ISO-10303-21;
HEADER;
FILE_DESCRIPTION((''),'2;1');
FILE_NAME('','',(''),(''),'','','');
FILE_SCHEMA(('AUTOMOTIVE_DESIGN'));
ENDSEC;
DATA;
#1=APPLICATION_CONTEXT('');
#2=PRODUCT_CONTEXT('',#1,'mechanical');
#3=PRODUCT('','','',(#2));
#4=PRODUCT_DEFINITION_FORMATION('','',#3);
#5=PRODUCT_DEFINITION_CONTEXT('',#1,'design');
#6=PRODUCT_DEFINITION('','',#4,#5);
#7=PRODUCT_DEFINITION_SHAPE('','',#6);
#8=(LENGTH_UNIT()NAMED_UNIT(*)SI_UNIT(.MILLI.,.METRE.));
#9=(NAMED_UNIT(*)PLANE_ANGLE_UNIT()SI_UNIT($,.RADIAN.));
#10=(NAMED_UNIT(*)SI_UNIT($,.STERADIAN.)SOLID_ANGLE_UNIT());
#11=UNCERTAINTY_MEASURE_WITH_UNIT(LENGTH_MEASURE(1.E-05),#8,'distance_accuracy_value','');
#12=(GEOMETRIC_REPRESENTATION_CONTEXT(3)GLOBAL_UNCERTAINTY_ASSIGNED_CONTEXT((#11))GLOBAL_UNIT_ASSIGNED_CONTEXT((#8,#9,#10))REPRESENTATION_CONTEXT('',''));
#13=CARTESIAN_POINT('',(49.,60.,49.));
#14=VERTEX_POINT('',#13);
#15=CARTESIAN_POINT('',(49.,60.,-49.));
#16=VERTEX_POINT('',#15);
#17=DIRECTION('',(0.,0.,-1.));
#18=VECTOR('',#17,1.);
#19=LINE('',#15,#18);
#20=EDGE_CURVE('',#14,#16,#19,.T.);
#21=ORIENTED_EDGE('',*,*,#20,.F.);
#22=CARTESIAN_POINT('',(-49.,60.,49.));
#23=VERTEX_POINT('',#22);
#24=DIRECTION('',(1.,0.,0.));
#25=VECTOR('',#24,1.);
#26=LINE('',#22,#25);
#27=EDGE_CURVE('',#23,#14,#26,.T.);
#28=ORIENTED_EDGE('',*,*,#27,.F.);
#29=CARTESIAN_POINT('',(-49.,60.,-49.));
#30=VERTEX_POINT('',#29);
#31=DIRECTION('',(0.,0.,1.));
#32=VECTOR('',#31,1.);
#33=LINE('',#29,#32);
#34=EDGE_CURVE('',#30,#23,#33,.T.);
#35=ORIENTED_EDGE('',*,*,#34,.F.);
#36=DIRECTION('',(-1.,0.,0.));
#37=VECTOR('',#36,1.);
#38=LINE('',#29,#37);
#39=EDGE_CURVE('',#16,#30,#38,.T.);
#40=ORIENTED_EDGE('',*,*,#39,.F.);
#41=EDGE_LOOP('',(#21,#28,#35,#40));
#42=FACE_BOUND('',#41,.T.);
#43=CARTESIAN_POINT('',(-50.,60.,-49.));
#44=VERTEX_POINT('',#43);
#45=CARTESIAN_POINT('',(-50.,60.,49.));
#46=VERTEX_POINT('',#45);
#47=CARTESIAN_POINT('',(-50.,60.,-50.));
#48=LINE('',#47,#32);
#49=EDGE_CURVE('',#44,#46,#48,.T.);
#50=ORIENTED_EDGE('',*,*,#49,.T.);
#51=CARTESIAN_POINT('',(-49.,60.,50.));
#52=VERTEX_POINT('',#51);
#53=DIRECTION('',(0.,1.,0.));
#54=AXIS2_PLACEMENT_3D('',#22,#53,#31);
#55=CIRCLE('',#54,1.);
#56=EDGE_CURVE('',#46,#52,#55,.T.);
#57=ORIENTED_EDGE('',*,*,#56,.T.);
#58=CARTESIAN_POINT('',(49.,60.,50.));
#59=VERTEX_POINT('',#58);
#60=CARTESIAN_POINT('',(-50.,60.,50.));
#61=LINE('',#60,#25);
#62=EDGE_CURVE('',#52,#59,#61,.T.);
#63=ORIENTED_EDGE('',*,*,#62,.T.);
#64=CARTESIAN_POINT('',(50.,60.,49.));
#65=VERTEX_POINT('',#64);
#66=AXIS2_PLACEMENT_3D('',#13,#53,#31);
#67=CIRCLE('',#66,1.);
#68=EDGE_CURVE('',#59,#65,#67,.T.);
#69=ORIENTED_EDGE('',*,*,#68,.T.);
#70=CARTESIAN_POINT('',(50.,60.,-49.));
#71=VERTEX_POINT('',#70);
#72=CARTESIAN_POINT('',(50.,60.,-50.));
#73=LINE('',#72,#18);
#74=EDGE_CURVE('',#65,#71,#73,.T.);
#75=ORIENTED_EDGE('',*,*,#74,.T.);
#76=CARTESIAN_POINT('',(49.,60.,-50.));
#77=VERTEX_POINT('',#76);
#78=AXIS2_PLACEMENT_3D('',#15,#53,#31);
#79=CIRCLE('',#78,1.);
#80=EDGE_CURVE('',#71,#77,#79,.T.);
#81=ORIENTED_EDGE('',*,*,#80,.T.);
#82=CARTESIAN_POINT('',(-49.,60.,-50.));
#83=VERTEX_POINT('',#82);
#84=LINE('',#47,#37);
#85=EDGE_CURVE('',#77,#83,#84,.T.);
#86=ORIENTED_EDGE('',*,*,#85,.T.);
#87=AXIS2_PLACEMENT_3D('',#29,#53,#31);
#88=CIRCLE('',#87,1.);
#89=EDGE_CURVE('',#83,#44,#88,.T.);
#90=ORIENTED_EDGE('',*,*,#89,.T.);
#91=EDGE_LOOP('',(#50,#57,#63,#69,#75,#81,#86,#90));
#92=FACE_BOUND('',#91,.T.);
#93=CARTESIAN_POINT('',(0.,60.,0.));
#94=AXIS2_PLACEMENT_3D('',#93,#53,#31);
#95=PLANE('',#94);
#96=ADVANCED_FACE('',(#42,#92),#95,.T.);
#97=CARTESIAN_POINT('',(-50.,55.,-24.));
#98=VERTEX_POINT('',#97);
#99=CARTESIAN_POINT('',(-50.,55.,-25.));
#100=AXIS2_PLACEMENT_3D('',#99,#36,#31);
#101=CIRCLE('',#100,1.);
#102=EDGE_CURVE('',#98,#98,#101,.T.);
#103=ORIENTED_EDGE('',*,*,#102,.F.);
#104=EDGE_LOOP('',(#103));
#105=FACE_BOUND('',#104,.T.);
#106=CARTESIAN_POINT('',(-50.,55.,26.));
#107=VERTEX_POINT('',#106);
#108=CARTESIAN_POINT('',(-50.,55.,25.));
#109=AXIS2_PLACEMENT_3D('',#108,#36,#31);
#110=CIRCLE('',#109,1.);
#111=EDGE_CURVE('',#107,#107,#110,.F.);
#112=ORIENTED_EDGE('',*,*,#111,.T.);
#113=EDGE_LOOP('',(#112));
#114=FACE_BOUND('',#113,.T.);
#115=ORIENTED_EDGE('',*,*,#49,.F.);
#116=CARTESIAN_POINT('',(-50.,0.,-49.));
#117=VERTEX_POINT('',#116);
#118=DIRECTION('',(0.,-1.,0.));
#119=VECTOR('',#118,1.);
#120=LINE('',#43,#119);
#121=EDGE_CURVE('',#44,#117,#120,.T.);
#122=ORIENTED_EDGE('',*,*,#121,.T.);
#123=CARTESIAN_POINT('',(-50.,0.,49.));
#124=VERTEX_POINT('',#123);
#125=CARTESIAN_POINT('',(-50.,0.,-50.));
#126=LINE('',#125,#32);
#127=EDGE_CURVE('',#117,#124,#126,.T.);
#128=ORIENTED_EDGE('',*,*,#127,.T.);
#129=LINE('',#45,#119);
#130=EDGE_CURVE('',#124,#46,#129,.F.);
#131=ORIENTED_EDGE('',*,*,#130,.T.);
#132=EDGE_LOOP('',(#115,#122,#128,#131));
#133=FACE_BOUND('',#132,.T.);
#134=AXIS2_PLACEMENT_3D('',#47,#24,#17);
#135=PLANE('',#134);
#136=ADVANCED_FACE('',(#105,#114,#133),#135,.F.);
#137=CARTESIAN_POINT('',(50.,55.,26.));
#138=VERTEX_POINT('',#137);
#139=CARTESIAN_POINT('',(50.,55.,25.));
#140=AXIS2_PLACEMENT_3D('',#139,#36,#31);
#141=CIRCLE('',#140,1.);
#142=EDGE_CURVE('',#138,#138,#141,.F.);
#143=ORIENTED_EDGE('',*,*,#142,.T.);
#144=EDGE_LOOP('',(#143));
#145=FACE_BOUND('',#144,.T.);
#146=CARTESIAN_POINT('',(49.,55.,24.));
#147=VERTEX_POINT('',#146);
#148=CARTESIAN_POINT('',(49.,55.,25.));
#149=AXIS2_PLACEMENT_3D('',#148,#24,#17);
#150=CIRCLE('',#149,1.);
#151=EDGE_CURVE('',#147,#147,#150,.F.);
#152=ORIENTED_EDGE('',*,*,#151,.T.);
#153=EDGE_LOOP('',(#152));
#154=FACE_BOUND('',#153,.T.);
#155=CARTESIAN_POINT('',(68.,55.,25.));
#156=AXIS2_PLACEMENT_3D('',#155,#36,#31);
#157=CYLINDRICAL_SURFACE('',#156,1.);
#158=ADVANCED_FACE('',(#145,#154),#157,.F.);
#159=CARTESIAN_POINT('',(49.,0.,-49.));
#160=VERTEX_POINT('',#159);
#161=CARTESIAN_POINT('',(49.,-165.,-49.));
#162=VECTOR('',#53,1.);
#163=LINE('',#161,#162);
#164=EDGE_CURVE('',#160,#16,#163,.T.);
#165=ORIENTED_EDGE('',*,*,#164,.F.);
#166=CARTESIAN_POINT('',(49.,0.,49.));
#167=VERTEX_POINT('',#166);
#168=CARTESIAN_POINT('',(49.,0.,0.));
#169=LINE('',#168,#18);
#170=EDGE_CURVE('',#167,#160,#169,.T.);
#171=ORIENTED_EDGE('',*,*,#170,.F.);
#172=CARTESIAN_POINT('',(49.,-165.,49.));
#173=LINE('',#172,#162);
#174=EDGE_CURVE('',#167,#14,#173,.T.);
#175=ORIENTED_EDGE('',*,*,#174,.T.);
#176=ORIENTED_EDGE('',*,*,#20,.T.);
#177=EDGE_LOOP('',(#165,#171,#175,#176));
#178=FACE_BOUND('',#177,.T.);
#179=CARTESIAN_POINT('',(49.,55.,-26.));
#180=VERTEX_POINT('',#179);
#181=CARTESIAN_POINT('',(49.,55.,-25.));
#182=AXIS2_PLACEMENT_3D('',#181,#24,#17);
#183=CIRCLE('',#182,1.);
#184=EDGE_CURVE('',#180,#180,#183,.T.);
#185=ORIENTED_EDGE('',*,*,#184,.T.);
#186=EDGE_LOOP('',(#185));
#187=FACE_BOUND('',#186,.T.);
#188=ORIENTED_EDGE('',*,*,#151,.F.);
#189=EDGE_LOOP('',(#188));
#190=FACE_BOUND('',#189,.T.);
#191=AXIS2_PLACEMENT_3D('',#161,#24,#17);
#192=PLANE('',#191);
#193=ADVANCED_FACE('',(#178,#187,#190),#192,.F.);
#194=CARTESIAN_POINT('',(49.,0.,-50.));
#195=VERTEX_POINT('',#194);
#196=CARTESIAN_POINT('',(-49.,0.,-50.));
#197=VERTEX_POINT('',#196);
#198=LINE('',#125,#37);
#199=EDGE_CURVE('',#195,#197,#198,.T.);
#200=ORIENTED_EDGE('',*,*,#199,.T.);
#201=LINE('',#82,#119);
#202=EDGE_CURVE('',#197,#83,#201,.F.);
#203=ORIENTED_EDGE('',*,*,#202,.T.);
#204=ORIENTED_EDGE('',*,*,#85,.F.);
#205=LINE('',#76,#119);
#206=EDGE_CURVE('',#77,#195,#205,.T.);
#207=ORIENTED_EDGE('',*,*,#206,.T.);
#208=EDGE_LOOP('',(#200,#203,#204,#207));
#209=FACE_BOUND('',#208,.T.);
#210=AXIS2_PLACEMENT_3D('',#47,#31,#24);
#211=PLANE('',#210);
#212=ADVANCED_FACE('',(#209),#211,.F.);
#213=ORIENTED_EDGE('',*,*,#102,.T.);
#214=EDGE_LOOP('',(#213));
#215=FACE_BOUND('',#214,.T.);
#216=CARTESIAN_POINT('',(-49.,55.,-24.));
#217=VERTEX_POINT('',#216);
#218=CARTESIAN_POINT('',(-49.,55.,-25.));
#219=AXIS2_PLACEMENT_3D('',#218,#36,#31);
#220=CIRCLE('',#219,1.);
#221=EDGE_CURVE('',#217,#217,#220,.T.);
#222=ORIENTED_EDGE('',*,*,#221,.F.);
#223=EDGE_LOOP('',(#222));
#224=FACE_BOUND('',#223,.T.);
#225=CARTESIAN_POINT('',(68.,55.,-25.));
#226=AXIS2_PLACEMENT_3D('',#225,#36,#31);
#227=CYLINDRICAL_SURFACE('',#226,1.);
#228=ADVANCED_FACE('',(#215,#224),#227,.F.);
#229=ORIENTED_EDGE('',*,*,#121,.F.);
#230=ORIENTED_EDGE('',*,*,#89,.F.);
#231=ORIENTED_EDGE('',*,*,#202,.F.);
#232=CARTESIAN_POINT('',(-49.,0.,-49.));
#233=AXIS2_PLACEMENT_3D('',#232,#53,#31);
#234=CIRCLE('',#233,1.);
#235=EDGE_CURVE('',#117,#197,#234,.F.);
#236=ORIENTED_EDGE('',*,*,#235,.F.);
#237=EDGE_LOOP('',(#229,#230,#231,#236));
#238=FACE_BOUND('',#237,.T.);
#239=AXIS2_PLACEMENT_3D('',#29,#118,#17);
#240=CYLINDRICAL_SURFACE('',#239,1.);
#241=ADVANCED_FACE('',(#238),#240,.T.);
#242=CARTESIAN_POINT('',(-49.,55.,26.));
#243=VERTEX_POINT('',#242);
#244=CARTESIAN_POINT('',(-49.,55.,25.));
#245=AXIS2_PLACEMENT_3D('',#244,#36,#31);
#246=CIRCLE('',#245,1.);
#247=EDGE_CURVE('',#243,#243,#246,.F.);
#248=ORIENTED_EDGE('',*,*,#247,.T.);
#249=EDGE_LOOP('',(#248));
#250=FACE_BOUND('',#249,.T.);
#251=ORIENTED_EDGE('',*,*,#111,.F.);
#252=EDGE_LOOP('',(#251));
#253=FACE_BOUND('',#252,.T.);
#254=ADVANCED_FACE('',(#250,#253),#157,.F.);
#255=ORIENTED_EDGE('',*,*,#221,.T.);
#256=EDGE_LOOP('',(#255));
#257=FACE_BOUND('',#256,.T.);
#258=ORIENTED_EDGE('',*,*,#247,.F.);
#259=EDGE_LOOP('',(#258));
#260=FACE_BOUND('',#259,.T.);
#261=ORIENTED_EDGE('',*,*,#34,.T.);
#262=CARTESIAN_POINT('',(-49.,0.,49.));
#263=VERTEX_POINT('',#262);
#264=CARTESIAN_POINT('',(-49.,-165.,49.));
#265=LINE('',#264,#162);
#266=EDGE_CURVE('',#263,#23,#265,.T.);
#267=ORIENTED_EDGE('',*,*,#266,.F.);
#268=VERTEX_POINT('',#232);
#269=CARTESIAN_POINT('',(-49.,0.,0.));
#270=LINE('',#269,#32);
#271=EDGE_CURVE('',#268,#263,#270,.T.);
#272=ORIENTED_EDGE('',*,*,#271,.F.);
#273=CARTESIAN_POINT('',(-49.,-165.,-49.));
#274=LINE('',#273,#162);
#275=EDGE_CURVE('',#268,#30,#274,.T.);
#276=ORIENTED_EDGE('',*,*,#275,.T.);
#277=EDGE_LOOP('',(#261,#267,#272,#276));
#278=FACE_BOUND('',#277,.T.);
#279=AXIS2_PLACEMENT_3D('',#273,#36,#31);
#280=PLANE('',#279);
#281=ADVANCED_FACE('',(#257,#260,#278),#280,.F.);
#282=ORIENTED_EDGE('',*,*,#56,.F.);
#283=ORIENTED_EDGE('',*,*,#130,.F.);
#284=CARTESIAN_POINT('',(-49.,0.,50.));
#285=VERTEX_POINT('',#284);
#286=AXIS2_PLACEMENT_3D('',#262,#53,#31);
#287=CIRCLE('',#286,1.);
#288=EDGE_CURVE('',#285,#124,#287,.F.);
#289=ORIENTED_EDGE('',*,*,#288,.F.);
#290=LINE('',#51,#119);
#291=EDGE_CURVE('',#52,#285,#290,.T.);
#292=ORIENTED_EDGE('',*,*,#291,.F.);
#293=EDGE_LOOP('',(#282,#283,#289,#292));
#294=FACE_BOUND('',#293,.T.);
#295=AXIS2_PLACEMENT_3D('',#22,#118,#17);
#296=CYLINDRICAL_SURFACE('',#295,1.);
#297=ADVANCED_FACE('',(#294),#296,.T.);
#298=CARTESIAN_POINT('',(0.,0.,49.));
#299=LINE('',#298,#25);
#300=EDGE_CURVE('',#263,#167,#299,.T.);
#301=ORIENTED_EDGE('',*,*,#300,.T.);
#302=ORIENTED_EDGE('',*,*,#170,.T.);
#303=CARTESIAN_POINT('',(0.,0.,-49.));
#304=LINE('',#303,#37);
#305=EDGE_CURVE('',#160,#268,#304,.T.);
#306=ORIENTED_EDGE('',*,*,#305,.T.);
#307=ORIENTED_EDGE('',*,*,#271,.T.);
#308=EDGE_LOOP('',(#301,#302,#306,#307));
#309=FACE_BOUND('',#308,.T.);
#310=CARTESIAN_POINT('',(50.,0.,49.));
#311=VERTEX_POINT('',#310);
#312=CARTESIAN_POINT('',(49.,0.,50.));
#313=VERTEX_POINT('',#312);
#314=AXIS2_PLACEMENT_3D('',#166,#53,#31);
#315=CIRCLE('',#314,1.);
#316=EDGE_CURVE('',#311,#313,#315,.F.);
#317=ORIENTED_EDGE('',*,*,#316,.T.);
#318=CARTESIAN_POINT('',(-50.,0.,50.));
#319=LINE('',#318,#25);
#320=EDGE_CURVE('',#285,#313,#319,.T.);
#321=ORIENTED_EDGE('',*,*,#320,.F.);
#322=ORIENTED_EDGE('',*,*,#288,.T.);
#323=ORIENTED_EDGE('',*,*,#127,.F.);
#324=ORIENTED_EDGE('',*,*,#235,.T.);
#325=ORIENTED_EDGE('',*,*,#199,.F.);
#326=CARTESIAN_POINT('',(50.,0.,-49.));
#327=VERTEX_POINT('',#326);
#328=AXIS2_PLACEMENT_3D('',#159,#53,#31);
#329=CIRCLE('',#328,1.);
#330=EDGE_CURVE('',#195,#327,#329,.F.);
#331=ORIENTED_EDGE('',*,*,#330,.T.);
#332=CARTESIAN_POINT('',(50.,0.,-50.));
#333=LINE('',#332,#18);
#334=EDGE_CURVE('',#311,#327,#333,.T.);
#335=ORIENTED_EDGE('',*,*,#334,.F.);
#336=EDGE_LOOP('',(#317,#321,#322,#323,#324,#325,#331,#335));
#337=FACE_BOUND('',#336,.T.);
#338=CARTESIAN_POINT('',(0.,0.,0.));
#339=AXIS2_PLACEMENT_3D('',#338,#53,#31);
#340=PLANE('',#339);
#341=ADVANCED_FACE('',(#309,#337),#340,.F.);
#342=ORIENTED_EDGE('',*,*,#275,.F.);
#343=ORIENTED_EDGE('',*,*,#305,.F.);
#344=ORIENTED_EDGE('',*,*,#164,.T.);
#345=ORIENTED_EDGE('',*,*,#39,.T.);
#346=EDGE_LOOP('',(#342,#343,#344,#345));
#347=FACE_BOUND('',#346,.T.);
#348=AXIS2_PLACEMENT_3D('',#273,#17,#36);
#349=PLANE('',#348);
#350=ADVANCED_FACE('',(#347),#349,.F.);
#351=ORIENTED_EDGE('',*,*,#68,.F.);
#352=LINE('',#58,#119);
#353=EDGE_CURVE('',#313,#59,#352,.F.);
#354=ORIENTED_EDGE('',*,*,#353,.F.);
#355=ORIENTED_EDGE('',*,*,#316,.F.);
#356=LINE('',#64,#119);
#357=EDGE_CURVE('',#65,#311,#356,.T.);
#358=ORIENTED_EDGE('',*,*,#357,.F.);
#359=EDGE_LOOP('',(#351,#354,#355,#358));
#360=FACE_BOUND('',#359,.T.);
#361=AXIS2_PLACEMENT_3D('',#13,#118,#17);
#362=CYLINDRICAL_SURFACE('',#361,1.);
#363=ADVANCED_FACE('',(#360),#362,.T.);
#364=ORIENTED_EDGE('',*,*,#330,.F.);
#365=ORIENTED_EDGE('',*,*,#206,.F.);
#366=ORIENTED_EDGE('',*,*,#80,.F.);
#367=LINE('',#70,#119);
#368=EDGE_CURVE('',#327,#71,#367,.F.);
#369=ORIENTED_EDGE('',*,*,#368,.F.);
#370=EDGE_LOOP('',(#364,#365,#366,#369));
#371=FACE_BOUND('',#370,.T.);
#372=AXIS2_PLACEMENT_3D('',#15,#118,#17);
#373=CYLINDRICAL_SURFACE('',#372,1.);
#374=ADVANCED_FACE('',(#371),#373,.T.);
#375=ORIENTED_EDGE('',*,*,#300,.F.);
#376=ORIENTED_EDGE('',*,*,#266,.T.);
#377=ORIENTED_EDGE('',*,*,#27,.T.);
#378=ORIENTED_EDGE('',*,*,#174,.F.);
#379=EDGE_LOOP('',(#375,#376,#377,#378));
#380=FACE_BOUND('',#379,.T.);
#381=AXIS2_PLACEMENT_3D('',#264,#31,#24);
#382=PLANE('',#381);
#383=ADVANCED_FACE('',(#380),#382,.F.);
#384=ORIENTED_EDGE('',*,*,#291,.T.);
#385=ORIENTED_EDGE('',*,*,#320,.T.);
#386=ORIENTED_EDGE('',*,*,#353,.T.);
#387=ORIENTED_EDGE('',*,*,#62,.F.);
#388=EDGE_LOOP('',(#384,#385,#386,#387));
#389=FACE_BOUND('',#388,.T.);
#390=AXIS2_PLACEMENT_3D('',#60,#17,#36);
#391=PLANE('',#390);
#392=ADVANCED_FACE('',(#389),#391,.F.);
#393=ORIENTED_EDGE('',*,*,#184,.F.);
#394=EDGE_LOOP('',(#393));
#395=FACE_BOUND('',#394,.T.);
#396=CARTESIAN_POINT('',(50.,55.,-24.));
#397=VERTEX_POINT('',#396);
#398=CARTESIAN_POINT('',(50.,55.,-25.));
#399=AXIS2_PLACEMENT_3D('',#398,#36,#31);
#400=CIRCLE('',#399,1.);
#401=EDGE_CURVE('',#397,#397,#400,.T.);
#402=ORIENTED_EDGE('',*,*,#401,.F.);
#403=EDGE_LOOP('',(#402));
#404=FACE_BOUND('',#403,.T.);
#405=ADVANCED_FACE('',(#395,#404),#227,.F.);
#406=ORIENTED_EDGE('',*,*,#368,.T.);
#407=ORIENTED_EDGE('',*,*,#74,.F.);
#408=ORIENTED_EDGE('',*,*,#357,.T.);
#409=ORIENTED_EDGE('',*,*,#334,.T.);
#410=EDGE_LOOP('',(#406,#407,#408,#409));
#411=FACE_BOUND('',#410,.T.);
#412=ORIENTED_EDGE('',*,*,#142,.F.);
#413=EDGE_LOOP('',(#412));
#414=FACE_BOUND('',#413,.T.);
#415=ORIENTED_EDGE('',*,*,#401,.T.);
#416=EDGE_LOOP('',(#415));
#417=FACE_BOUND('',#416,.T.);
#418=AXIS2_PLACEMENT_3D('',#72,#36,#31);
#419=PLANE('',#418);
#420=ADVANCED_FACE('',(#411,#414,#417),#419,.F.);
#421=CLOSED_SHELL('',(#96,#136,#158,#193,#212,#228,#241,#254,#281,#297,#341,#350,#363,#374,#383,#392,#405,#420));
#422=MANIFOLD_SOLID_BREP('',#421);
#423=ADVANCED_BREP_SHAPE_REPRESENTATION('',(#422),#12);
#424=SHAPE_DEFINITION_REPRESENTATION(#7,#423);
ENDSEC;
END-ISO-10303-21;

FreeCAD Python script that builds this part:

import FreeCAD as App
import Part
import Sketcher
from FreeCAD import Vector
Q = App.Units.Quantity


def edges_at(feature, points):
    """Names of the edges that pass closest to the given points."""
    edges = feature.Shape.Edges
    near = lambda p: min(range(len(edges)), key=lambda i: edges[i].distToShape(Part.Vertex(*p))[0])
    return sorted({f"Edge{near(p) + 1}" for p in points})

doc = App.newDocument("Part")
params = doc.addObject("Spreadsheet::Sheet", "Params")
for row, (alias, value) in enumerate([
    ("sketch1_width", "100 mm"),
    ("pad1_length", "60 mm"),
    ("sketch2_width", "98 mm"),
    ("pocket1_length", "225 mm"),
    ("sketch3_diameter", "2 mm"),
    ("pocket2_length", "118 mm"),
    ("fillet_radius", "1 mm"),
], start=1):
    params.set(f"A{row}", alias)
    params.set(f"B{row}", "=" + value)
    params.setAlias(f"B{row}", alias)

body = doc.addObject("PartDesign::Body", "Body")

sketch1 = body.newObject("Sketcher::SketchObject", "Sketch")
sketch1.AttachmentSupport = (doc.getObject("XZ_Plane"), [""])
sketch1.MapMode = "FlatFace"
sketch1.addGeometry(Part.LineSegment(Vector(-50, -50, 0), Vector(-50, 50, 0)), False)
sketch1.addGeometry(Part.LineSegment(Vector(-50, 50, 0), Vector(50, 50, 0)), False)
sketch1.addGeometry(Part.LineSegment(Vector(50, 50, 0), Vector(50, -50, 0)), False)
sketch1.addGeometry(Part.LineSegment(Vector(50, -50, 0), Vector(-50, -50, 0)), False)
sketch1.addConstraint(Sketcher.Constraint("Coincident", 0, 2, 1, 1))
sketch1.addConstraint(Sketcher.Constraint("Coincident", 1, 2, 2, 1))
sketch1.addConstraint(Sketcher.Constraint("Coincident", 2, 2, 3, 1))
sketch1.addConstraint(Sketcher.Constraint("Coincident", 3, 2, 0, 1))
sketch1.addConstraint(Sketcher.Constraint("Vertical", 0))
sketch1.addConstraint(Sketcher.Constraint("Horizontal", 1))
sketch1.addConstraint(Sketcher.Constraint("Vertical", 2))
sketch1.addConstraint(Sketcher.Constraint("Horizontal", 3))
sketch1.addConstraint(Sketcher.Constraint("Symmetric", 0, 2, 2, 2, -1, 1))
sketch1.addConstraint(Sketcher.Constraint("Equal", 3, 0))
sketch1.addConstraint(Sketcher.Constraint("DistanceX", 1, 1, 1, 2, Q("100 mm")))
sketch1.setExpression("Constraints[10]", "Params.sketch1_width")
pad1 = body.newObject("PartDesign::Pad", "Pad")
pad1.Profile = sketch1
pad1.setExpression("Length", "Params.pad1_length")
pad1.Reversed = True

sketch2 = body.newObject("Sketcher::SketchObject", "Sketch001")
sketch2.AttachmentSupport = (doc.getObject("XZ_Plane"), [""])
sketch2.MapMode = "FlatFace"
sketch2.AttachmentOffset = App.Placement(Vector(0, 0, -60), App.Rotation())
sketch2.addGeometry(Part.LineSegment(Vector(-49, -49, 0), Vector(-49, 49, 0)), False)
sketch2.addGeometry(Part.LineSegment(Vector(-49, 49, 0), Vector(49, 49, 0)), False)
sketch2.addGeometry(Part.LineSegment(Vector(49, 49, 0), Vector(49, -49, 0)), False)
sketch2.addGeometry(Part.LineSegment(Vector(49, -49, 0), Vector(-49, -49, 0)), False)
sketch2.addConstraint(Sketcher.Constraint("Coincident", 0, 2, 1, 1))
sketch2.addConstraint(Sketcher.Constraint("Coincident", 1, 2, 2, 1))
sketch2.addConstraint(Sketcher.Constraint("Coincident", 2, 2, 3, 1))
sketch2.addConstraint(Sketcher.Constraint("Coincident", 3, 2, 0, 1))
sketch2.addConstraint(Sketcher.Constraint("Vertical", 0))
sketch2.addConstraint(Sketcher.Constraint("Horizontal", 1))
sketch2.addConstraint(Sketcher.Constraint("Vertical", 2))
sketch2.addConstraint(Sketcher.Constraint("Horizontal", 3))
sketch2.addConstraint(Sketcher.Constraint("Symmetric", 0, 2, 2, 2, -1, 1))
sketch2.addConstraint(Sketcher.Constraint("Equal", 3, 0))
sketch2.addConstraint(Sketcher.Constraint("DistanceX", 1, 1, 1, 2, Q("98 mm")))
sketch2.setExpression("Constraints[10]", "Params.sketch2_width")
pocket1 = body.newObject("PartDesign::Pocket", "Pocket")
pocket1.Profile = sketch2
pocket1.setExpression("Length", "Params.pocket1_length")
pocket1.Reversed = True

sketch3 = body.newObject("Sketcher::SketchObject", "Sketch002")
sketch3.AttachmentSupport = (doc.getObject("YZ_Plane"), [""])
sketch3.MapMode = "FlatFace"
sketch3.AttachmentOffset = App.Placement(Vector(0, 0, -50), App.Rotation())
sketch3.addGeometry(Part.Circle(Vector(55, -25, 0), Vector(0, 0, 1), 1), False)
sketch3.addGeometry(Part.Circle(Vector(55, 25, 0), Vector(0, 0, 1), 1), False)
sketch3.addConstraint(Sketcher.Constraint("Equal", 0, 1))
sketch3.addConstraint(Sketcher.Constraint("Symmetric", 0, 3, 1, 3, -1))
sketch3.addConstraint(Sketcher.Constraint("Diameter", 0, Q("2 mm")))
sketch3.addConstraint(Sketcher.Constraint("DistanceX", -1, 1, 0, 3, Q("55 mm")))
sketch3.addConstraint(Sketcher.Constraint("DistanceY", 0, 3, -1, 1, Q("25 mm")))
sketch3.setExpression("Constraints[2]", "Params.sketch3_diameter")
pocket2 = body.newObject("PartDesign::Pocket", "Pocket001")
pocket2.Profile = sketch3
pocket2.setExpression("Length", "Params.pocket2_length")
pocket2.Reversed = True
doc.recompute()

fillet = body.newObject("PartDesign::Fillet", "Fillet")
fillet.Base = (pocket2, edges_at(pocket2, [
    (50, 30, 50),
    (-50, 30, 50),
    (-50, 30, -50),
    (50, 30, -50),
]))
fillet.setExpression("Radius", "Params.fillet_radius")

doc.recompute()
